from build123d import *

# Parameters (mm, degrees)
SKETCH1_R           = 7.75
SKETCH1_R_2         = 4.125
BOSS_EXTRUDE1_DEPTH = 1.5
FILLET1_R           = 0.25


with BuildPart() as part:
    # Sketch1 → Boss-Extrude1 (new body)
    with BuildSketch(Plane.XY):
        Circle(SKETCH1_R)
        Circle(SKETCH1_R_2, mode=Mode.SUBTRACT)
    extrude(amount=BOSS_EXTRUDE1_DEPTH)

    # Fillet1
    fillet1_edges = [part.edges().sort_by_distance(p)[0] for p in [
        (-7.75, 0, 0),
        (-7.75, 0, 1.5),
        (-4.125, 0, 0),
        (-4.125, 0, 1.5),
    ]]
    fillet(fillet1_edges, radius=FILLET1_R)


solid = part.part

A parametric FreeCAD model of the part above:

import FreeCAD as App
import Part
import Sketcher


def edges_at(feature, points):
    """Names of the edges that pass closest to the given points."""
    edges = feature.Shape.Edges
    near = lambda p: min(range(len(edges)), key=lambda i: edges[i].distToShape(Part.Vertex(*p))[0])
    return sorted({f"Edge{near(p) + 1}" for p in points})

doc = App.newDocument("Part")
body = doc.addObject("PartDesign::Body", "Body")

sketch1 = body.newObject("Sketcher::SketchObject", "Sketch")
sketch1.AttachmentSupport = (doc.getObject("XY_Plane"), [""])
sketch1.MapMode = "FlatFace"
sketch1.addGeometry([
    Part.Circle(App.Vector(0, 0, 0), App.Vector(0, 0, 1), 7.8),
    Part.Circle(App.Vector(0, 0, 0), App.Vector(0, 0, 1), 4.1),
], False)
sketch1.addConstraint([
    Sketcher.Constraint("Coincident", 0, 3, -1, 1),
    Sketcher.Constraint("Coincident", 1, 3, -1, 1),
    Sketcher.Constraint("Diameter", 0, 15.5),
    Sketcher.Constraint("Diameter", 1, 8.25),
])
pad1 = body.newObject("PartDesign::Pad", "Pad")
pad1.Profile = sketch1
pad1.Length = 1.5
doc.recompute()

fillet = body.newObject("PartDesign::Fillet", "Fillet")
fillet.Base = (pad1, edges_at(pad1, [
    (-7.75, 0, 0),
    (-7.75, 0, 1.5),
    (-4.125, 0, 0),
    (-4.125, 0, 1.5),
]))
fillet.Radius = 0.25

doc.recompute()
